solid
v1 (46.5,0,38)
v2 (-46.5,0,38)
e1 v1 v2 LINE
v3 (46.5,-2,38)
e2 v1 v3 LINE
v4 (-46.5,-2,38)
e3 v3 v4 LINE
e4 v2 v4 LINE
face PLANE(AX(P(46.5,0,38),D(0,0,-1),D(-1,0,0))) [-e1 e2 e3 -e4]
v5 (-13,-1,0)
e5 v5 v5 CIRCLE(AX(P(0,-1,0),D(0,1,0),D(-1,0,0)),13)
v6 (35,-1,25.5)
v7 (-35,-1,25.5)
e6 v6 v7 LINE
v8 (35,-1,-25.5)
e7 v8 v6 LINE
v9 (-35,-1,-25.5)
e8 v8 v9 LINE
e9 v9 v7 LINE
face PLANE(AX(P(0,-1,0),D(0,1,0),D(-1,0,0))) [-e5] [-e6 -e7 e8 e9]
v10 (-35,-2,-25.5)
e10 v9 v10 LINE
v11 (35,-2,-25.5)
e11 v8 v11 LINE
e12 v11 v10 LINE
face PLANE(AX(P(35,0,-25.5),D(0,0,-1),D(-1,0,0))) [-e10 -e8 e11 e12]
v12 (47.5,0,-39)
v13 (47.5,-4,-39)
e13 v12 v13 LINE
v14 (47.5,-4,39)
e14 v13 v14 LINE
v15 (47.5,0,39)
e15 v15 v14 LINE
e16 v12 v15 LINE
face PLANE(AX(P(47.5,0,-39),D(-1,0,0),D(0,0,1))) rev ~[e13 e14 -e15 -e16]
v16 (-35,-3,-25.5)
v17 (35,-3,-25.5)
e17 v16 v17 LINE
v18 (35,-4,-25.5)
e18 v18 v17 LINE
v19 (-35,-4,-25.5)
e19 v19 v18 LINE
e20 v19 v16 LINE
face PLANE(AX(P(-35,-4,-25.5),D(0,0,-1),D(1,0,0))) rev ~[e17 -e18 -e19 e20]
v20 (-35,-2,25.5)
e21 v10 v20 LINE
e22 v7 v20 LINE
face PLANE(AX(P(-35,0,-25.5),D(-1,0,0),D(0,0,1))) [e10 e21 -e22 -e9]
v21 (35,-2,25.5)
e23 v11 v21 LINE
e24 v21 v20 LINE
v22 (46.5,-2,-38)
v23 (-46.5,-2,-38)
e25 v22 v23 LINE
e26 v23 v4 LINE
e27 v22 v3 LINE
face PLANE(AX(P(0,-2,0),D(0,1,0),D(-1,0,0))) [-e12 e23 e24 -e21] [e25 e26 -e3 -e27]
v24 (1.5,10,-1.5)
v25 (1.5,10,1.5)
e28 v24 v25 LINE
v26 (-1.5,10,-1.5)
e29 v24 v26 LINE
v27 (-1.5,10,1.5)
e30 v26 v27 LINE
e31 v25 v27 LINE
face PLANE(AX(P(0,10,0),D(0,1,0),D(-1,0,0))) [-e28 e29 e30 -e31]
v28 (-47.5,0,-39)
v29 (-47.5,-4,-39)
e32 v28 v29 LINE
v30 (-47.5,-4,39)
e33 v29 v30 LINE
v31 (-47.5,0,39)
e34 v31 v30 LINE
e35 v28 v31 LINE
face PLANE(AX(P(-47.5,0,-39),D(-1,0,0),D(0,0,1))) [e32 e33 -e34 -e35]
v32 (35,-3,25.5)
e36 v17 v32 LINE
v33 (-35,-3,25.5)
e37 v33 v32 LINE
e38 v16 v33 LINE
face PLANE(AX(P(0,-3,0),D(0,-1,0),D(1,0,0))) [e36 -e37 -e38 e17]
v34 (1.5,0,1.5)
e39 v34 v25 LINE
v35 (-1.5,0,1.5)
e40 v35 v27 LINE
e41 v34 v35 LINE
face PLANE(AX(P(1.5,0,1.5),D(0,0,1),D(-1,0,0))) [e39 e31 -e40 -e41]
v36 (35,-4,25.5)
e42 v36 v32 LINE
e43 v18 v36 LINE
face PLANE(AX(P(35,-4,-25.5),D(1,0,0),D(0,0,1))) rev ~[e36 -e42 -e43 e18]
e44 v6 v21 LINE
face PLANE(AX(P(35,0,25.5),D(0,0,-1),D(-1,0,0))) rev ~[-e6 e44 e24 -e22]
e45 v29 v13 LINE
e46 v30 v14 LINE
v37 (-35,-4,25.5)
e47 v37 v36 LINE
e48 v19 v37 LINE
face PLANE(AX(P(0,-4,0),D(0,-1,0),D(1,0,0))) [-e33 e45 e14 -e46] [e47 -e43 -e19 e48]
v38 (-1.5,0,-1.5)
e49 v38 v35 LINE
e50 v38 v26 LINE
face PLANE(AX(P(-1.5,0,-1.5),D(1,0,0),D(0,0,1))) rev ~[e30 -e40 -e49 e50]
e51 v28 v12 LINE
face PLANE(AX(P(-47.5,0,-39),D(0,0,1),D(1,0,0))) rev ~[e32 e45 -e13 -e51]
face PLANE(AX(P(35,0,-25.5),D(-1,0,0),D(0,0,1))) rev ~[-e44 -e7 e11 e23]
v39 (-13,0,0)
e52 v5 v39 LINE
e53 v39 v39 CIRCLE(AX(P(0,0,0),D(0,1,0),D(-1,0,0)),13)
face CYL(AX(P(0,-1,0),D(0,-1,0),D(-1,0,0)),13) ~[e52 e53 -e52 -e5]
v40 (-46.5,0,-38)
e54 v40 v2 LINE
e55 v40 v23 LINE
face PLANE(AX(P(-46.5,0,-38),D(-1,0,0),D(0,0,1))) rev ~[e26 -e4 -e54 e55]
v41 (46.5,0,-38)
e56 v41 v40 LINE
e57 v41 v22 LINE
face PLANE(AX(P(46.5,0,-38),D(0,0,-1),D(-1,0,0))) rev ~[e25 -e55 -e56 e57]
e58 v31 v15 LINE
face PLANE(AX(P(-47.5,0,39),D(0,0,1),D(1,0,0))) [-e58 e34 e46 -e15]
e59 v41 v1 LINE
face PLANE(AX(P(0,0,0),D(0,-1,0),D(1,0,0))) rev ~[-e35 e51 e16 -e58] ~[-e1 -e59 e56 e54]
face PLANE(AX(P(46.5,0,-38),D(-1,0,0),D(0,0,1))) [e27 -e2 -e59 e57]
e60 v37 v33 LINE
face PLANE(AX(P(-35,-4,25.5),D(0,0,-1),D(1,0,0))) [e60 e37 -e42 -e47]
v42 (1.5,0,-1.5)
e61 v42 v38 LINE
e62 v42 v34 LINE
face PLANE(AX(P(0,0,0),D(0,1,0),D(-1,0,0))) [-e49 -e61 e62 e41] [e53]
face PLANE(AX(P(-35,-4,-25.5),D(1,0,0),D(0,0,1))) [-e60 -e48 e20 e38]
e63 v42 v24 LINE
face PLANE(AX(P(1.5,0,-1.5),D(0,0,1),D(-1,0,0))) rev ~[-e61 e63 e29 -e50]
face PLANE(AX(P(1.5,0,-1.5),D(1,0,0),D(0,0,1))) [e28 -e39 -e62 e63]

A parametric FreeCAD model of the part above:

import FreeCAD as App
import Part
import Sketcher
from FreeCAD import Vector


def add_polygon(sketch, points):
    """Adds a closed chain of lines whose ends are joined by coincident constraints."""
    first, n = sketch.GeometryCount, len(points)
    for a, b in zip(points, points[1:] + points[:1]):
        sketch.addGeometry(Part.LineSegment(App.Vector(*a, 0), App.Vector(*b, 0)), False)
    for i in range(n):
        sketch.addConstraint(Sketcher.Constraint("Coincident", first + i, 2, first + (i + 1) % n, 1))

doc = App.newDocument("Part")
body = doc.addObject("PartDesign::Body", "Body")

sketch1 = body.newObject("Sketcher::SketchObject", "Sketch")
sketch1.AttachmentSupport = (doc.getObject("XZ_Plane"), [""])
sketch1.MapMode = "FlatFace"
add_polygon(sketch1, [(-47.5, 39), (-47.5, -39), (47.5, -39), (47.5, 39)])
sketch1.addConstraint([
    Sketcher.Constraint("Vertical", 0),
    Sketcher.Constraint("Horizontal", 1),
    Sketcher.Constraint("Vertical", 2),
    Sketcher.Constraint("Horizontal", 3),
    Sketcher.Constraint("Symmetric", 0, 2, 2, 2, -1, 1),
    Sketcher.Constraint("DistanceX", 1, 1, 1, 2, 95.0),
    Sketcher.Constraint("DistanceY", 0, 2, 0, 1, 78.0),
])
pad1 = body.newObject("PartDesign::Pad", "Pad")
pad1.Profile = sketch1
pad1.Length = 4

sketch2 = body.newObject("Sketcher::SketchObject", "Sketch001")
sketch2.AttachmentSupport = (doc.getObject("XZ_Plane"), [""])
sketch2.MapMode = "FlatFace"
add_polygon(sketch2, [(35, 25.5), (35, -25.5), (-35, -25.5), (-35, 25.5)])
sketch2.addConstraint([
    Sketcher.Constraint("Vertical", 0),
    Sketcher.Constraint("Horizontal", 1),
    Sketcher.Constraint("Vertical", 2),
    Sketcher.Constraint("Horizontal", 3),
    Sketcher.Constraint("Symmetric", 0, 2, 2, 2, -1, 1),
    Sketcher.Constraint("DistanceX", 1, 2, 1, 1, 70.0),
    Sketcher.Constraint("DistanceY", 0, 2, 0, 1, 51.0),
])
pocket1 = body.newObject("PartDesign::Pocket", "Pocket")
pocket1.Profile = sketch2
pocket1.Length = 1
pocket1.Reversed = True

sketch3 = body.newObject("Sketcher::SketchObject", "Sketch002")
sketch3.AttachmentSupport = (doc.getObject("XZ_Plane"), [""])
sketch3.MapMode = "FlatFace"
add_polygon(sketch3, [(46.5, 38), (46.5, -38), (-46.5, -38), (-46.5, 38)])
add_polygon(sketch3, [(-35, -25.5), (35, -25.5), (35, 25.5), (-35, 25.5)])
sketch3.addConstraint([
    Sketcher.Constraint("Vertical", 0),
    Sketcher.Constraint("Horizontal", 1),
    Sketcher.Constraint("Vertical", 2),
    Sketcher.Constraint("Horizontal", 3),
    Sketcher.Constraint("Horizontal", 4),
    Sketcher.Constraint("Vertical", 5),
    Sketcher.Constraint("Horizontal", 6),
    Sketcher.Constraint("Vertical", 7),
    Sketcher.Constraint("Symmetric", 0, 2, 2, 2, -1, 1),
    Sketcher.Constraint("Symmetric", 4, 2, 6, 2, -1, 1),
    Sketcher.Constraint("DistanceX", 1, 2, 1, 1, 93.0),
    Sketcher.Constraint("DistanceX", 4, 1, 4, 2, 70.0),
    Sketcher.Constraint("DistanceY", 0, 2, 0, 1, 76.0),
    Sketcher.Constraint("DistanceY", 5, 1, 5, 2, 51.0),
])
pocket2 = body.newObject("PartDesign::Pocket", "Pocket001")
pocket2.Profile = sketch3
pocket2.Length = 2
pocket2.Reversed = True

sketch4 = body.newObject("Sketcher::SketchObject", "Sketch003")
sketch4.AttachmentSupport = (doc.getObject("XZ_Plane"), [""])
sketch4.MapMode = "FlatFace"
sketch4.AttachmentOffset = App.Placement(Vector(0, 0, 4), App.Rotation())
add_polygon(sketch4, [(-35, 25.5), (-35, -25.5), (35, -25.5), (35, 25.5)])
sketch4.addConstraint([
    Sketcher.Constraint("Vertical", 0),
    Sketcher.Constraint("Horizontal", 1),
    Sketcher.Constraint("Vertical", 2),
    Sketcher.Constraint("Horizontal", 3),
    Sketcher.Constraint("Symmetric", 0, 2, 2, 2, -1, 1),
    Sketcher.Constraint("DistanceX", 1, 1, 1, 2, 70.0),
    Sketcher.Constraint("DistanceY", 0, 2, 0, 1, 51.0),
])
pocket3 = body.newObject("PartDesign::Pocket", "Pocket002")
pocket3.Profile = sketch4
pocket3.Length = 1

sketch5 = body.newObject("Sketcher::SketchObject", "Sketch004")
sketch5.AttachmentSupport = (doc.getObject("XZ_Plane"), [""])
sketch5.MapMode = "FlatFace"
sketch5.AttachmentOffset = App.Placement(Vector(0, 0, 1), App.Rotation())
sketch5.addGeometry(Part.Circle(Vector(0, 0, 0), Vector(0, 0, 1), 13), False)
sketch5.addConstraint([
    Sketcher.Constraint("Coincident", 0, 3, -1, 1),
    Sketcher.Constraint("Diameter", 0, 26.0),
])
pad2 = body.newObject("PartDesign::Pad", "Pad001")
pad2.Profile = sketch5
pad2.Length = 1
pad2.Reversed = True

sketch6 = body.newObject("Sketcher::SketchObject", "Sketch005")
sketch6.AttachmentSupport = (doc.getObject("XZ_Plane"), [""])
sketch6.MapMode = "FlatFace"
add_polygon(sketch6, [(1.5, 1.5), (1.5, -1.5), (-1.5, -1.5), (-1.5, 1.5)])
sketch6.addConstraint([
    Sketcher.Constraint("Vertical", 0),
    Sketcher.Constraint("Horizontal", 1),
    Sketcher.Constraint("Vertical", 2),
    Sketcher.Constraint("Horizontal", 3),
    Sketcher.Constraint("Symmetric", 0, 2, 2, 2, -1, 1),
    Sketcher.Constraint("Equal", 3, 0),
    Sketcher.Constraint("DistanceX", 1, 2, 1, 1, 3.0),
])
pad3 = body.newObject("PartDesign::Pad", "Pad002")
pad3.Profile = sketch6
pad3.Length = 10
pad3.Reversed = True

doc.recompute()
